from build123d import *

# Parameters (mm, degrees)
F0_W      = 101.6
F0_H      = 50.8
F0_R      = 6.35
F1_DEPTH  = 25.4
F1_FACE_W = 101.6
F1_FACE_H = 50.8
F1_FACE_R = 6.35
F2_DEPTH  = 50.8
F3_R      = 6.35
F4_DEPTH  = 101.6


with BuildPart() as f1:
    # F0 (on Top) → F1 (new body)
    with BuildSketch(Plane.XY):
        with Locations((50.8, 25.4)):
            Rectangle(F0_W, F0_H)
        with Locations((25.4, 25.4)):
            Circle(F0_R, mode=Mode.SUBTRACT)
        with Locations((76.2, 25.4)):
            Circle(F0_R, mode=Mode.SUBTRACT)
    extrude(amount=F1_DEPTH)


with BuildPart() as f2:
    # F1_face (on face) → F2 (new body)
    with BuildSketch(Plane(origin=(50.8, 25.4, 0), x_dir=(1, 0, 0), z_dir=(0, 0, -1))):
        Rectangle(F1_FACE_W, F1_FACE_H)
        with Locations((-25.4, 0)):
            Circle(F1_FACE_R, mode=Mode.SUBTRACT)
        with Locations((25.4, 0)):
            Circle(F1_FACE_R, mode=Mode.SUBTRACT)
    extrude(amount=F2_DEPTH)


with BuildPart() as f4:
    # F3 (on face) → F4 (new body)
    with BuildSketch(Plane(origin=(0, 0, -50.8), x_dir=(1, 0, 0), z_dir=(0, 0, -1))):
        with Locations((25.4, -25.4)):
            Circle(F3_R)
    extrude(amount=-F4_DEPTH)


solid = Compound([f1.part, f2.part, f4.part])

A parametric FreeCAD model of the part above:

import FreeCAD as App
import Part
import Sketcher

V = App.Vector
Q = App.Units.Quantity

doc = App.newDocument("Part")
body = doc.addObject("PartDesign::Body", "Body")

sketch1 = body.newObject("Sketcher::SketchObject", "Sketch")
sketch1.AttachmentSupport = (doc.getObject("XY_Plane"), [""])
sketch1.MapMode = "FlatFace"
sketch1.addGeometry(Part.LineSegment(V(0, 50.8, 0), V(0, 0, 0)), False)
sketch1.addGeometry(Part.LineSegment(V(0, 0, 0), V(101.6, 0, 0)), False)
sketch1.addGeometry(Part.LineSegment(V(101.6, 0, 0), V(101.6, 50.8, 0)), False)
sketch1.addGeometry(Part.LineSegment(V(101.6, 50.8, 0), V(0, 50.8, 0)), False)
sketch1.addGeometry(Part.Circle(V(25.4, 25.4, 0), V(0, 0, 1), 6.35), False)
sketch1.addGeometry(Part.Circle(V(76.2, 25.4, 0), V(0, 0, 1), 6.35), False)
sketch1.addConstraint(Sketcher.Constraint("Coincident", 0, 2, 1, 1))
sketch1.addConstraint(Sketcher.Constraint("Coincident", 1, 2, 2, 1))
sketch1.addConstraint(Sketcher.Constraint("Coincident", 2, 2, 3, 1))
sketch1.addConstraint(Sketcher.Constraint("Coincident", 3, 2, 0, 1))
sketch1.addConstraint(Sketcher.Constraint("Vertical", 0))
sketch1.addConstraint(Sketcher.Constraint("Horizontal", 1))
sketch1.addConstraint(Sketcher.Constraint("Vertical", 2))
sketch1.addConstraint(Sketcher.Constraint("Horizontal", 3))
sketch1.addConstraint(Sketcher.Constraint("Coincident", 0, 2, -1, 1))
sketch1.addConstraint(Sketcher.Constraint("Equal", 4, 5))
sketch1.addConstraint(Sketcher.Constraint("Horizontal", 4, 3, 5, 3))
sketch1.addConstraint(Sketcher.Constraint("Diameter", 4, Q("0.5 in")))
sketch1.addConstraint(Sketcher.Constraint("DistanceX", 1, 1, 1, 2, Q("4 in")))
sketch1.addConstraint(Sketcher.Constraint("DistanceY", 0, 2, 0, 1, Q("2 in")))
sketch1.addConstraint(Sketcher.Constraint("DistanceX", -1, 1, 4, 3, Q("1 in")))
sketch1.addConstraint(Sketcher.Constraint("DistanceY", -1, 1, 4, 3, Q("1 in")))
sketch1.addConstraint(Sketcher.Constraint("DistanceX", -1, 1, 5, 3, Q("3 in")))
pad1 = body.newObject("PartDesign::Pad", "Pad")
pad1.Profile = sketch1
pad1.Length = Q("1 in")
body2 = doc.addObject("PartDesign::Body", "Body001")

sketch2 = body2.newObject("Sketcher::SketchObject", "Sketch001")
sketch2.AttachmentSupport = (doc.getObject("XY_Plane001"), [""])
sketch2.MapMode = "FlatFace"
sketch2.addGeometry(Part.LineSegment(V(0, 0, 0), V(0, 50.8, 0)), False)
sketch2.addGeometry(Part.LineSegment(V(0, 50.8, 0), V(101.6, 50.8, 0)), False)
sketch2.addGeometry(Part.LineSegment(V(101.6, 50.8, 0), V(101.6, 0, 0)), False)
sketch2.addGeometry(Part.LineSegment(V(101.6, 0, 0), V(0, 0, 0)), False)
sketch2.addGeometry(Part.Circle(V(25.4, 25.4, 0), V(0, 0, 1), 6.35), False)
sketch2.addGeometry(Part.Circle(V(76.2, 25.4, 0), V(0, 0, 1), 6.35), False)
sketch2.addConstraint(Sketcher.Constraint("Coincident", 0, 2, 1, 1))
sketch2.addConstraint(Sketcher.Constraint("Coincident", 1, 2, 2, 1))
sketch2.addConstraint(Sketcher.Constraint("Coincident", 2, 2, 3, 1))
sketch2.addConstraint(Sketcher.Constraint("Coincident", 3, 2, 0, 1))
sketch2.addConstraint(Sketcher.Constraint("Vertical", 0))
sketch2.addConstraint(Sketcher.Constraint("Horizontal", 1))
sketch2.addConstraint(Sketcher.Constraint("Vertical", 2))
sketch2.addConstraint(Sketcher.Constraint("Horizontal", 3))
sketch2.addConstraint(Sketcher.Constraint("Coincident", 3, 2, -1, 1))
sketch2.addConstraint(Sketcher.Constraint("Equal", 4, 5))
sketch2.addConstraint(Sketcher.Constraint("Horizontal", 4, 3, 5, 3))
sketch2.addConstraint(Sketcher.Constraint("Diameter", 4, Q("0.5 in")))
sketch2.addConstraint(Sketcher.Constraint("DistanceX", 1, 1, 1, 2, Q("4 in")))
sketch2.addConstraint(Sketcher.Constraint("DistanceY", 0, 1, 0, 2, Q("2 in")))
sketch2.addConstraint(Sketcher.Constraint("DistanceX", -1, 1, 4, 3, Q("1 in")))
sketch2.addConstraint(Sketcher.Constraint("DistanceY", -1, 1, 4, 3, Q("1 in")))
sketch2.addConstraint(Sketcher.Constraint("DistanceX", -1, 1, 5, 3, Q("3 in")))
pad2 = body2.newObject("PartDesign::Pad", "Pad001")
pad2.Profile = sketch2
pad2.Length = Q("2 in")
pad2.Reversed = True
body3 = doc.addObject("PartDesign::Body", "Body002")

sketch3 = body3.newObject("Sketcher::SketchObject", "Sketch002")
sketch3.AttachmentSupport = (doc.getObject("XY_Plane002"), [""])
sketch3.MapMode = "FlatFace"
sketch3.AttachmentOffset = App.Placement(V(0, 0, -2 * 25.4), App.Rotation())
sketch3.addGeometry(Part.Circle(V(25.4, 25.4, 0), V(0, 0, 1), 6.35), False)
sketch3.addConstraint(Sketcher.Constraint("Diameter", 0, Q("0.5 in")))
sketch3.addConstraint(Sketcher.Constraint("DistanceX", -1, 1, 0, 3, Q("1 in")))
sketch3.addConstraint(Sketcher.Constraint("DistanceY", -1, 1, 0, 3, Q("1 in")))
pad3 = body3.newObject("PartDesign::Pad", "Pad002")
pad3.Profile = sketch3
pad3.Length = Q("4 in")

doc.recompute()
